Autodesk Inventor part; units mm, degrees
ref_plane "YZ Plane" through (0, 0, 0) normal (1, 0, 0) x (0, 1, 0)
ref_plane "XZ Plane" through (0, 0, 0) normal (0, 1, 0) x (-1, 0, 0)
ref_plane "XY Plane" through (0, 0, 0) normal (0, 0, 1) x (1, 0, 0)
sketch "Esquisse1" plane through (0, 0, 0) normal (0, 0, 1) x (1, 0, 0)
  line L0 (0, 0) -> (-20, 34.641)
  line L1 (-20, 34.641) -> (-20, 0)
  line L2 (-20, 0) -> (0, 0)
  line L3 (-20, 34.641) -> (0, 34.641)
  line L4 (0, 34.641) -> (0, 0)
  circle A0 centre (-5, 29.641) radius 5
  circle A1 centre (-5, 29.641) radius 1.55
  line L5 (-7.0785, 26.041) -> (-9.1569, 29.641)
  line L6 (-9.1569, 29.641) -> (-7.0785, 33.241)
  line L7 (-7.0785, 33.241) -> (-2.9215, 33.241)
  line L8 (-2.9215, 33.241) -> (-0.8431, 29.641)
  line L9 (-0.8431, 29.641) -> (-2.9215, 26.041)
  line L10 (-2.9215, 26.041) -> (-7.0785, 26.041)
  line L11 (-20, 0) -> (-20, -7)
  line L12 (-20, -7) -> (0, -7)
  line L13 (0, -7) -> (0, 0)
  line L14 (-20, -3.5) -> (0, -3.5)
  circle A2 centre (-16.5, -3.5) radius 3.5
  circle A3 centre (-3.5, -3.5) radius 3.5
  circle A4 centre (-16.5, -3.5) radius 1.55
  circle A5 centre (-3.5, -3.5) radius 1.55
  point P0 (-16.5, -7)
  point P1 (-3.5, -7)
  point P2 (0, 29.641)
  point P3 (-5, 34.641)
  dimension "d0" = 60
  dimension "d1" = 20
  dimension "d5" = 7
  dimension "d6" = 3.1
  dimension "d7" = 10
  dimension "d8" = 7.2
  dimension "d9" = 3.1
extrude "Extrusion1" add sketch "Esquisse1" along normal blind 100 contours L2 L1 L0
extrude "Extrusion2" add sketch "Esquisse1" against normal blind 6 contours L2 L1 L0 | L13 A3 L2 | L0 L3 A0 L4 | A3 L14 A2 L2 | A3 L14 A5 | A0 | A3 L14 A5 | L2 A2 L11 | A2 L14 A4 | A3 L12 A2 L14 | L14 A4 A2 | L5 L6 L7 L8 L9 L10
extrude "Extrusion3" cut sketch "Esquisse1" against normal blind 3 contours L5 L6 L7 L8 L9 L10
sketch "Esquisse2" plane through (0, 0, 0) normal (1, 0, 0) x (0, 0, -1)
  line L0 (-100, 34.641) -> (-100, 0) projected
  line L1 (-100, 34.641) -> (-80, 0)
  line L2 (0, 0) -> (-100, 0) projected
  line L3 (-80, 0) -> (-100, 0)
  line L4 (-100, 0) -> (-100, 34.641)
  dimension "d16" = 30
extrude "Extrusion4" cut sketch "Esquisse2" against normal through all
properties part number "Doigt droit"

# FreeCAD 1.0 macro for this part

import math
import FreeCAD as App
import Part
import Sketcher
Q = App.Units.Quantity


def add_polygon(sketch, points):
    """Adds a closed chain of lines whose ends are joined by coincident constraints."""
    first, n = sketch.GeometryCount, len(points)
    for a, b in zip(points, points[1:] + points[:1]):
        sketch.addGeometry(Part.LineSegment(App.Vector(*a, 0), App.Vector(*b, 0)), False)
    for i in range(n):
        sketch.addConstraint(Sketcher.Constraint("Coincident", first + i, 2, first + (i + 1) % n, 1))

doc = App.newDocument("Part")
params = doc.addObject("Spreadsheet::Sheet", "Params")
for row, (alias, value) in enumerate([
    ("sketch1_width", "20 mm"),
    ("pad1_length", "100 mm"),
    ("sketch2_radius", "5 mm"),
    ("sketch2_diameter", "3.1 mm"),
    ("sketch2_radius2", "3.5 mm"),
    ("pad2_length", "6 mm"),
    ("sketch3_diameter", "3.1 mm"),
    ("pocket1_length", "3 mm"),
    ("sketch4_height", "20 mm"),
], start=1):
    params.set(f"A{row}", alias)
    params.set(f"B{row}", "=" + value)
    params.setAlias(f"B{row}", alias)

body = doc.addObject("PartDesign::Body", "Body")

# Sketch on XY plane
sketch1 = body.newObject("Sketcher::SketchObject", "Sketch")
sketch1.AttachmentSupport = (doc.getObject("XY_Plane"), [""])
sketch1.MapMode = "FlatFace"
add_polygon(sketch1, [(-20, 0), (0, 0), (-20, 35)])  # lines 0-2
sketch1.addConstraint([
    Sketcher.Constraint("Horizontal", 0),
    Sketcher.Constraint("Vertical", 2),
    Sketcher.Constraint("Coincident", 0, 2, -1, 1),
    Sketcher.Constraint("DistanceX", 0, 1, 0, 2, Q("20 mm")),
    Sketcher.Constraint("Angle", 1, Q("120 deg")),
])
sketch1.setExpression("Constraints[6]", "Params.sketch1_width")
pad1 = body.newObject("PartDesign::Pad", "Pad")
pad1.Profile = sketch1
pad1.setExpression("Length", "Params.pad1_length")

# Sketch on XY plane
sketch2 = body.newObject("Sketcher::SketchObject", "Sketch001")
sketch2.AttachmentSupport = (doc.getObject("XY_Plane"), [""])
sketch2.MapMode = "FlatFace"
sketch2.addGeometry([
    Part.LineSegment(App.Vector(-20, 34.6, 0), App.Vector(-20, -3.5, 0)),  # 0
    Part.ArcOfCircle(Part.Circle(App.Vector(-16.5, -3.5, 0), App.Vector(0, 0, 1), 3.5), math.radians(180), math.radians(270)),  # 1
    Part.LineSegment(App.Vector(-16.5, -7, 0), App.Vector(-3.5, -7, 0)),  # 2
    Part.ArcOfCircle(Part.Circle(App.Vector(-3.5, -3.5, 0), App.Vector(0, 0, 1), 3.5), math.radians(-90), math.radians(0)),  # 3
    Part.LineSegment(App.Vector(0, -3.5, 0), App.Vector(0, 29.6, 0)),  # 4
    Part.ArcOfCircle(Part.Circle(App.Vector(-5, 29.6, 0), App.Vector(0, 0, 1), 5), math.radians(0), math.radians(90)),  # 5
    Part.LineSegment(App.Vector(-5, 34.6, 0), App.Vector(-20, 34.6, 0)),  # 6
    Part.Circle(App.Vector(-3.5, -3.5, 0), App.Vector(0, 0, 1), 1.6),  # 7
    Part.Circle(App.Vector(-16.5, -3.5, 0), App.Vector(0, 0, 1), 1.6),  # 8
    Part.Circle(App.Vector(-5, 29.6, 0), App.Vector(0, 0, 1), 1.6),  # 9
], False)
sketch2.addConstraint([
    Sketcher.Constraint("Tangent", 0, 2, 1, 1),
    Sketcher.Constraint("Tangent", 1, 2, 2, 1),
    Sketcher.Constraint("Tangent", 2, 2, 3, 1),
    Sketcher.Constraint("Tangent", 3, 2, 4, 1),
    Sketcher.Constraint("Tangent", 4, 2, 5, 1),
    Sketcher.Constraint("Tangent", 5, 2, 6, 1),
    Sketcher.Constraint("Coincident", 6, 2, 0, 1),
    Sketcher.Constraint("Vertical", 0),
    Sketcher.Constraint("Horizontal", 2),
    Sketcher.Constraint("Vertical", 4),
    Sketcher.Constraint("Horizontal", 6),
    Sketcher.Constraint("Coincident", 7, 3, 3, 3),
    Sketcher.Constraint("Coincident", 8, 3, 1, 3),
    Sketcher.Constraint("Coincident", 9, 3, 5, 3),
    Sketcher.Constraint("Equal", 1, 3),
    Sketcher.Constraint("Equal", 7, 8),
    Sketcher.Constraint("Equal", 8, 9),
    Sketcher.Constraint("PointOnObject", 3, 2, -2),
    Sketcher.Constraint("Radius", 5, Q("5 mm")),
    Sketcher.Constraint("Diameter", 7, Q("3.1 mm")),
    Sketcher.Constraint("Radius", 1, Q("3.5 mm")),
    Sketcher.Constraint("DistanceX", 0, 2, -1, 1, Q("20 mm")),
    Sketcher.Constraint("DistanceY", 1, 2, -1, 1, Q("7 mm")),
    Sketcher.Constraint("DistanceY", 0, 2, 0, 1, Q("38.141 mm")),
])
sketch2.setExpression("Constraints[18]", "Params.sketch2_radius")
sketch2.setExpression("Constraints[19]", "Params.sketch2_diameter")
sketch2.setExpression("Constraints[20]", "Params.sketch2_radius2")
pad2 = body.newObject("PartDesign::Pad", "Pad001")
pad2.Profile = sketch2
pad2.setExpression("Length", "Params.pad2_length")
pad2.Reversed = True

# Sketch on XY plane
sketch3 = body.newObject("Sketcher::SketchObject", "Sketch002")
sketch3.AttachmentSupport = (doc.getObject("XY_Plane"), [""])
sketch3.MapMode = "FlatFace"
add_polygon(sketch3, [(-9.2, 29.6), (-7.1, 26), (-2.9, 26), (-0.8, 29.6), (-2.9, 33.2), (-7.1, 33.2)])  # lines 0-5
sketch3.addGeometry(Part.Circle(App.Vector(-5, 29.6, 0), App.Vector(0, 0, 1), 1.6), False)  # 6
sketch3.addConstraint([
    Sketcher.Constraint("Horizontal", 1),
    Sketcher.Constraint("Horizontal", 4),
    Sketcher.Constraint("Parallel", 0, 3),
    Sketcher.Constraint("Parallel", 2, 5),
    Sketcher.Constraint("Horizontal", 6, 3, 2, 2),
    Sketcher.Constraint("Horizontal", 2, 2, 5, 2),
    Sketcher.Constraint("Vertical", 1, 2, 3, 2),
    Sketcher.Constraint("Vertical", 0, 2, 4, 2),
    Sketcher.Constraint("Diameter", 6, Q("3.1 mm")),
    Sketcher.Constraint("DistanceY", 1, 2, 3, 2, Q("7.2 mm")),
    Sketcher.Constraint("Angle", 0, Q("-60.0007 deg")),
    Sketcher.Constraint("DistanceX", 6, 3, -1, 1, Q("5 mm")),
    Sketcher.Constraint("DistanceX", 1, 1, 1, 2, Q("4.157 mm")),
    Sketcher.Constraint("DistanceY", -1, 1, 6, 3, Q("29.641 mm")),
    Sketcher.Constraint("DistanceX", 2, 2, -1, 1, Q("0.843 mm")),
])
sketch3.setExpression("Constraints[14]", "Params.sketch3_diameter")
pocket1 = body.newObject("PartDesign::Pocket", "Pocket")
pocket1.Profile = sketch3
pocket1.setExpression("Length", "Params.pocket1_length")

# Sketch on YZ plane
sketch4 = body.newObject("Sketcher::SketchObject", "Sketch003")
sketch4.AttachmentSupport = (doc.getObject("YZ_Plane"), [""])
sketch4.MapMode = "FlatFace"
add_polygon(sketch4, [(0, 80), (35, 100), (0, 100)])  # lines 0-2
sketch4.addConstraint([
    Sketcher.Constraint("Horizontal", 1),
    Sketcher.Constraint("Vertical", 2),
    Sketcher.Constraint("PointOnObject", 1, 2, -2),
    Sketcher.Constraint("Angle", 0, Q("30 deg")),
    Sketcher.Constraint("DistanceY", 2, 2, 2, 1, Q("20 mm")),
    Sketcher.Constraint("DistanceY", -1, 1, 0, 2, Q("100 mm")),
])
sketch4.setExpression("Constraints[7]", "Params.sketch4_height")
pocket2 = body.newObject("PartDesign::Pocket", "Pocket001")
pocket2.Profile = sketch4
pocket2.Type = "ThroughAll"

doc.recompute()
